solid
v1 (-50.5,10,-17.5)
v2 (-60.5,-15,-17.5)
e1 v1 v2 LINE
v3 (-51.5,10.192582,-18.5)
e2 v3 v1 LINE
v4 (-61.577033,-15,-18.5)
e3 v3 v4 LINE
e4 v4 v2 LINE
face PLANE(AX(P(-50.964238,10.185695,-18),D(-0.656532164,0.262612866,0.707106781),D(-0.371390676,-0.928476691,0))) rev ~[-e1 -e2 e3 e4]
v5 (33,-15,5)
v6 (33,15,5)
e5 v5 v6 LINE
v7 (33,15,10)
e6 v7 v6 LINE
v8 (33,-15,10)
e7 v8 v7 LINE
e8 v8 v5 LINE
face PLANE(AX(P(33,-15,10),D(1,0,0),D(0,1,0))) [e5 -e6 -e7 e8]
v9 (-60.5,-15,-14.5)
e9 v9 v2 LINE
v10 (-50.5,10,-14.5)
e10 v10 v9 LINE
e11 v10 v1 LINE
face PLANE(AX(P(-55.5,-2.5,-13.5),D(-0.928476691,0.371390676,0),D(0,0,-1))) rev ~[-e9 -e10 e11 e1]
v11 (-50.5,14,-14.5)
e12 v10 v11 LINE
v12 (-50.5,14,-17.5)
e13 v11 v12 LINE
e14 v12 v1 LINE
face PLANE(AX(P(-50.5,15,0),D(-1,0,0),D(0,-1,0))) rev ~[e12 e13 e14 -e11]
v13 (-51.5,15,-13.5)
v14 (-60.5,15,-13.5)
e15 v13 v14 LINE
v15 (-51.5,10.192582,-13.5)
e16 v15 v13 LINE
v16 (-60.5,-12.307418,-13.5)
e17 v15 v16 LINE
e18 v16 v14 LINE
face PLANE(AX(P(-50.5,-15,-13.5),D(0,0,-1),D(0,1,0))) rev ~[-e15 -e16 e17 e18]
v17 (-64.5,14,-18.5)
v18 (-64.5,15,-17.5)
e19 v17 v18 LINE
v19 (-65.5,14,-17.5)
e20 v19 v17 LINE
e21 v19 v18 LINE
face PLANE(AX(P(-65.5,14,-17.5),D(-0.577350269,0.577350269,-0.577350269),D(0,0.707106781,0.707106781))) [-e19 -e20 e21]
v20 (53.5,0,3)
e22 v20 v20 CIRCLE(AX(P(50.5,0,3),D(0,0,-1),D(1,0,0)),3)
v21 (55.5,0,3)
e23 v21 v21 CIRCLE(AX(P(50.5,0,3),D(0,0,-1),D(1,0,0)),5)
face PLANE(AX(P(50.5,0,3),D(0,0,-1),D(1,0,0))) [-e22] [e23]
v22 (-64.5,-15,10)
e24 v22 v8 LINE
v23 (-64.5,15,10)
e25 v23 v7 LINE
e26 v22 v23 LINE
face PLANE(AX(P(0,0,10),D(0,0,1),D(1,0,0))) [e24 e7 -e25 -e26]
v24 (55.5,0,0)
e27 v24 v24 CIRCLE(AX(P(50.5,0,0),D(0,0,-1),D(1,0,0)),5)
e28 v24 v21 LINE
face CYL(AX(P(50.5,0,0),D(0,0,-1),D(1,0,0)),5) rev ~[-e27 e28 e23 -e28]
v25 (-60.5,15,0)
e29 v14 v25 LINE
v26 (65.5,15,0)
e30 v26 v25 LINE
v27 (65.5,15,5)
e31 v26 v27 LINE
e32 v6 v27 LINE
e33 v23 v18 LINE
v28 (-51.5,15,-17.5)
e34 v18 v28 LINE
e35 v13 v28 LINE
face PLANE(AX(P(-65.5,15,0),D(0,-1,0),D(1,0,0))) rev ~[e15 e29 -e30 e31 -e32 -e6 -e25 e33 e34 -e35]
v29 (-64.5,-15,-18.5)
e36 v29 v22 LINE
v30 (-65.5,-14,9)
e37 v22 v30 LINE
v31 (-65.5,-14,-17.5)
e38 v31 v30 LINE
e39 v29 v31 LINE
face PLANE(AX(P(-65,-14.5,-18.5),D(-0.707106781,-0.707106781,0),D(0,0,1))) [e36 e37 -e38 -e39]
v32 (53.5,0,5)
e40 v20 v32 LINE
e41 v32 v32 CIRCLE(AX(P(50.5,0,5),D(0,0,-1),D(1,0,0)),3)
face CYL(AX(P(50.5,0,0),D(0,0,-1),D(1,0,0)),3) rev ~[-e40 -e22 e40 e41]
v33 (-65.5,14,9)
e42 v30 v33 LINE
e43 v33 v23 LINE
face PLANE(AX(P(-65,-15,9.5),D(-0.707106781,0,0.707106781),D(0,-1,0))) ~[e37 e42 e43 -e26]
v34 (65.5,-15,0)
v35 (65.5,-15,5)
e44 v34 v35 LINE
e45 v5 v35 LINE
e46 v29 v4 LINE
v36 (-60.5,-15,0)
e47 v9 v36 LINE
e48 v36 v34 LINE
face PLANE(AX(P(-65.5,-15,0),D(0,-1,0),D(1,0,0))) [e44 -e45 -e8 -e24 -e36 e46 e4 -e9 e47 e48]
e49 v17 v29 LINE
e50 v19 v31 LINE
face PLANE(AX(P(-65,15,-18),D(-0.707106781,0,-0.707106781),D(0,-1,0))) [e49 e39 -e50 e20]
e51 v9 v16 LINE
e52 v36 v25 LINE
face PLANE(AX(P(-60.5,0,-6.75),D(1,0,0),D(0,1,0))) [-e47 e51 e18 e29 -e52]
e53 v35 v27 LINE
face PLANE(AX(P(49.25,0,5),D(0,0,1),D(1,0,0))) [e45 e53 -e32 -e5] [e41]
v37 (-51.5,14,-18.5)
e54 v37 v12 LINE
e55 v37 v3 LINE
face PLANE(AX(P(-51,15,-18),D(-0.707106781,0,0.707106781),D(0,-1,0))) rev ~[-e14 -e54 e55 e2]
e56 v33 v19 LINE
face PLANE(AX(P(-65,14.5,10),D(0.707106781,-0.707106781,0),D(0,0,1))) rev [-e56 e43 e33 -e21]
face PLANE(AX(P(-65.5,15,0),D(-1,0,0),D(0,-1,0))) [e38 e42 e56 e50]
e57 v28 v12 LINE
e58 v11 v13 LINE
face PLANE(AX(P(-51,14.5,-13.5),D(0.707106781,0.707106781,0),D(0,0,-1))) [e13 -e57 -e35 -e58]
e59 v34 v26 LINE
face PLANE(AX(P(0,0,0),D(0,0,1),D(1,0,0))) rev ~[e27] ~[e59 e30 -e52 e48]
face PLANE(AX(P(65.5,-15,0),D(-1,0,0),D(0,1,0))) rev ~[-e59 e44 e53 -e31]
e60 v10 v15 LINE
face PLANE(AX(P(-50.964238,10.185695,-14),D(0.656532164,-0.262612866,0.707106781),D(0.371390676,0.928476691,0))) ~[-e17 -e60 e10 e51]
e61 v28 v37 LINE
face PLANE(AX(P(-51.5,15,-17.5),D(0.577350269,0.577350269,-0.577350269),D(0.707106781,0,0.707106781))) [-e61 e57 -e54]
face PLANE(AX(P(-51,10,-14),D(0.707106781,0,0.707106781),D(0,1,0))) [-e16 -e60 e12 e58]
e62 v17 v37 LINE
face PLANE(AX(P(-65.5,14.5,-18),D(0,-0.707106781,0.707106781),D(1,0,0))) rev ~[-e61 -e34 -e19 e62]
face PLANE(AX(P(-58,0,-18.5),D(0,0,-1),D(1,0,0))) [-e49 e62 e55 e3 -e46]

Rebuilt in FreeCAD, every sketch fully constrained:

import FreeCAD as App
import Part
import Sketcher

V = App.Vector
Q = App.Units.Quantity


def edges_at(feature, points):
    """Names of the edges that pass closest to the given points."""
    edges = feature.Shape.Edges
    near = lambda p: min(range(len(edges)), key=lambda i: edges[i].distToShape(Part.Vertex(*p))[0])
    return sorted({f"Edge{near(p) + 1}" for p in points})

doc = App.newDocument("Part")
body = doc.addObject("PartDesign::Body", "Body")

# Sketch on XY plane
sketch1 = body.newObject("Sketcher::SketchObject", "Sketch")
sketch1.AttachmentSupport = (doc.getObject("XY_Plane"), [""])
sketch1.MapMode = "FlatFace"
sketch1.addGeometry(Part.LineSegment(V(-66, 15, 0), V(-66, -15, 0)), False)
sketch1.addGeometry(Part.LineSegment(V(-66, -15, 0), V(66, -15, 0)), False)
sketch1.addGeometry(Part.LineSegment(V(66, -15, 0), V(66, 15, 0)), False)
sketch1.addGeometry(Part.LineSegment(V(66, 15, 0), V(-66, 15, 0)), False)
sketch1.addConstraint(Sketcher.Constraint("Coincident", 0, 2, 1, 1))
sketch1.addConstraint(Sketcher.Constraint("Coincident", 1, 2, 2, 1))
sketch1.addConstraint(Sketcher.Constraint("Coincident", 2, 2, 3, 1))
sketch1.addConstraint(Sketcher.Constraint("Coincident", 3, 2, 0, 1))
sketch1.addConstraint(Sketcher.Constraint("Vertical", 0))
sketch1.addConstraint(Sketcher.Constraint("Horizontal", 1))
sketch1.addConstraint(Sketcher.Constraint("Vertical", 2))
sketch1.addConstraint(Sketcher.Constraint("Horizontal", 3))
sketch1.addConstraint(Sketcher.Constraint("Symmetric", 0, 2, 2, 2, -1, 1))
sketch1.addConstraint(Sketcher.Constraint("DistanceX", 1, 1, 1, 2, Q("131 mm")))
sketch1.addConstraint(Sketcher.Constraint("DistanceY", 0, 2, 0, 1, Q("30 mm")))
pad1 = body.newObject("PartDesign::Pad", "Pad")
pad1.Profile = sketch1
pad1.Length = 10

# Sketch on XY plane
sketch2 = body.newObject("Sketcher::SketchObject", "Sketch001")
sketch2.AttachmentSupport = (doc.getObject("XY_Plane"), [""])
sketch2.MapMode = "FlatFace"
sketch2.addGeometry(Part.LineSegment(V(-66, -15, 0), V(-66, 15, 0)), False)
sketch2.addGeometry(Part.LineSegment(V(-66, 15, 0), V(-50, 15, 0)), False)
sketch2.addGeometry(Part.LineSegment(V(-50, 15, 0), V(-50, -15, 0)), False)
sketch2.addGeometry(Part.LineSegment(V(-50, -15, 0), V(-66, -15, 0)), False)
sketch2.addConstraint(Sketcher.Constraint("Coincident", 0, 2, 1, 1))
sketch2.addConstraint(Sketcher.Constraint("Coincident", 1, 2, 2, 1))
sketch2.addConstraint(Sketcher.Constraint("Coincident", 2, 2, 3, 1))
sketch2.addConstraint(Sketcher.Constraint("Coincident", 3, 2, 0, 1))
sketch2.addConstraint(Sketcher.Constraint("Vertical", 0))
sketch2.addConstraint(Sketcher.Constraint("Horizontal", 1))
sketch2.addConstraint(Sketcher.Constraint("Vertical", 2))
sketch2.addConstraint(Sketcher.Constraint("Horizontal", 3))
sketch2.addConstraint(Sketcher.Constraint("DistanceX", 1, 1, 1, 2, Q("15 mm")))
sketch2.addConstraint(Sketcher.Constraint("DistanceY", 0, 1, 0, 2, Q("30 mm")))
sketch2.addConstraint(Sketcher.Constraint("DistanceY", -1, 1, 0, 2, Q("15 mm")))
sketch2.addConstraint(Sketcher.Constraint("DistanceX", 0, 2, -1, 1, Q("65.5 mm")))
pad2 = body.newObject("PartDesign::Pad", "Pad001")
pad2.Profile = sketch2
pad2.Length = 18.5
pad2.Reversed = True

# Sketch on YZ plane
sketch3 = body.newObject("Sketcher::SketchObject", "Sketch002")
sketch3.AttachmentSupport = (doc.getObject("YZ_Plane"), [""])
sketch3.MapMode = "FlatFace"
sketch3.AttachmentOffset = App.Placement(V(0, 0, -50.5), App.Rotation())
sketch3.addGeometry(Part.LineSegment(V(-15, 0, 0), V(-15, -14, 0)), False)
sketch3.addGeometry(Part.LineSegment(V(-15, -14, 0), V(15, -14, 0)), False)
sketch3.addGeometry(Part.LineSegment(V(15, -14, 0), V(15, 0, 0)), False)
sketch3.addGeometry(Part.LineSegment(V(15, 0, 0), V(-15, 0, 0)), False)
sketch3.addConstraint(Sketcher.Constraint("Coincident", 0, 2, 1, 1))
sketch3.addConstraint(Sketcher.Constraint("Coincident", 1, 2, 2, 1))
sketch3.addConstraint(Sketcher.Constraint("Coincident", 2, 2, 3, 1))
sketch3.addConstraint(Sketcher.Constraint("Coincident", 3, 2, 0, 1))
sketch3.addConstraint(Sketcher.Constraint("Vertical", 0))
sketch3.addConstraint(Sketcher.Constraint("Horizontal", 1))
sketch3.addConstraint(Sketcher.Constraint("Vertical", 2))
sketch3.addConstraint(Sketcher.Constraint("Horizontal", 3))
sketch3.addConstraint(Sketcher.Constraint("Symmetric", 2, 2, 3, 2, -1, 1))
sketch3.addConstraint(Sketcher.Constraint("DistanceX", 1, 1, 1, 2, Q("30 mm")))
sketch3.addConstraint(Sketcher.Constraint("DistanceY", 0, 2, 0, 1, Q("13.5 mm")))
pocket1 = body.newObject("PartDesign::Pocket", "Pocket")
pocket1.Profile = sketch3
pocket1.Length = 10

# Sketch on XY plane
sketch4 = body.newObject("Sketcher::SketchObject", "Sketch003")
sketch4.AttachmentSupport = (doc.getObject("XY_Plane"), [""])
sketch4.MapMode = "FlatFace"
sketch4.addGeometry(Part.Circle(V(50.5, 0, 0), V(0, 0, 1), 3), False)
sketch4.addConstraint(Sketcher.Constraint("PointOnObject", 0, 3, -1))
sketch4.addConstraint(Sketcher.Constraint("Diameter", 0, Q("6 mm")))
sketch4.addConstraint(Sketcher.Constraint("DistanceX", -1, 1, 0, 3, Q("50.5 mm")))
pocket2 = body.newObject("PartDesign::Pocket", "Pocket001")
pocket2.Profile = sketch4
pocket2.Type = "ThroughAll"
pocket2.Reversed = True

# Sketch on XY plane
sketch5 = body.newObject("Sketcher::SketchObject", "Sketch004")
sketch5.AttachmentSupport = (doc.getObject("XY_Plane"), [""])
sketch5.MapMode = "FlatFace"
sketch5.AttachmentOffset = App.Placement(V(0, 0, 10), App.Rotation())
sketch5.addGeometry(Part.LineSegment(V(33, 15, 0), V(33, -15, 0)), False)
sketch5.addGeometry(Part.LineSegment(V(33, -15, 0), V(66, -15, 0)), False)
sketch5.addGeometry(Part.LineSegment(V(66, -15, 0), V(66, 15, 0)), False)
sketch5.addGeometry(Part.LineSegment(V(66, 15, 0), V(33, 15, 0)), False)
sketch5.addConstraint(Sketcher.Constraint("Coincident", 0, 2, 1, 1))
sketch5.addConstraint(Sketcher.Constraint("Coincident", 1, 2, 2, 1))
sketch5.addConstraint(Sketcher.Constraint("Coincident", 2, 2, 3, 1))
sketch5.addConstraint(Sketcher.Constraint("Coincident", 3, 2, 0, 1))
sketch5.addConstraint(Sketcher.Constraint("Vertical", 0))
sketch5.addConstraint(Sketcher.Constraint("Horizontal", 1))
sketch5.addConstraint(Sketcher.Constraint("Vertical", 2))
sketch5.addConstraint(Sketcher.Constraint("Horizontal", 3))
sketch5.addConstraint(Sketcher.Constraint("DistanceY", 0, 2, 0, 1, Q("30 mm")))
sketch5.addConstraint(Sketcher.Constraint("DistanceX", 1, 1, 1, 2, Q("32.5 mm")))
sketch5.addConstraint(Sketcher.Constraint("DistanceX", -1, 1, 0, 2, Q("33 mm")))
sketch5.addConstraint(Sketcher.Constraint("DistanceY", 0, 2, -1, 1, Q("15 mm")))
pocket3 = body.newObject("PartDesign::Pocket", "Pocket002")
pocket3.Profile = sketch5
pocket3.Length = 5

# Sketch on XY plane
sketch6 = body.newObject("Sketcher::SketchObject", "Sketch005")
sketch6.AttachmentSupport = (doc.getObject("XY_Plane"), [""])
sketch6.MapMode = "FlatFace"
sketch6.addGeometry(Part.Circle(V(50, 0, 0), V(0, 0, 1), 5), False)
sketch6.addConstraint(Sketcher.Constraint("PointOnObject", 0, 3, -1))
sketch6.addConstraint(Sketcher.Constraint("Diameter", 0, Q("10 mm")))
sketch6.addConstraint(Sketcher.Constraint("DistanceX", -1, 1, 0, 3, Q("50.5 mm")))
pocket4 = body.newObject("PartDesign::Pocket", "Pocket003")
pocket4.Profile = sketch6
pocket4.Length = 3
pocket4.Reversed = True
doc.recompute()

chamfer = body.newObject("PartDesign::Chamfer", "Chamfer")
chamfer.Base = (pocket4, edges_at(pocket4, [(-50.5, -15, -16)]))
chamfer.ChamferType = "Two distances"
chamfer.Size = 25
chamfer.Size2 = 10
chamfer.FlipDirection = True
doc.recompute()

chamfer2 = body.newObject("PartDesign::Chamfer", "Chamfer001")
chamfer2.Base = (chamfer, edges_at(chamfer, [
    (-55.5, -2.5, -13.5),
    (-55.5, -2.5, -18.5),
    (-50.5, 12.5, -13.5),
    (-50.5, 12.5, -18.5),
    (-58, 15, -18.5),
    (-50.5, 15, -16),
    (-65.5, 0, -18.5),
    (-65.5, -15, -4.25),
    (-65.5, -15, -4.25),
    (-65.5, 0, 10),
    (-65.5, 15, -4.25),
    (-65.5, 15, -4.25),
]))
chamfer2.Size = 1

doc.recompute()
